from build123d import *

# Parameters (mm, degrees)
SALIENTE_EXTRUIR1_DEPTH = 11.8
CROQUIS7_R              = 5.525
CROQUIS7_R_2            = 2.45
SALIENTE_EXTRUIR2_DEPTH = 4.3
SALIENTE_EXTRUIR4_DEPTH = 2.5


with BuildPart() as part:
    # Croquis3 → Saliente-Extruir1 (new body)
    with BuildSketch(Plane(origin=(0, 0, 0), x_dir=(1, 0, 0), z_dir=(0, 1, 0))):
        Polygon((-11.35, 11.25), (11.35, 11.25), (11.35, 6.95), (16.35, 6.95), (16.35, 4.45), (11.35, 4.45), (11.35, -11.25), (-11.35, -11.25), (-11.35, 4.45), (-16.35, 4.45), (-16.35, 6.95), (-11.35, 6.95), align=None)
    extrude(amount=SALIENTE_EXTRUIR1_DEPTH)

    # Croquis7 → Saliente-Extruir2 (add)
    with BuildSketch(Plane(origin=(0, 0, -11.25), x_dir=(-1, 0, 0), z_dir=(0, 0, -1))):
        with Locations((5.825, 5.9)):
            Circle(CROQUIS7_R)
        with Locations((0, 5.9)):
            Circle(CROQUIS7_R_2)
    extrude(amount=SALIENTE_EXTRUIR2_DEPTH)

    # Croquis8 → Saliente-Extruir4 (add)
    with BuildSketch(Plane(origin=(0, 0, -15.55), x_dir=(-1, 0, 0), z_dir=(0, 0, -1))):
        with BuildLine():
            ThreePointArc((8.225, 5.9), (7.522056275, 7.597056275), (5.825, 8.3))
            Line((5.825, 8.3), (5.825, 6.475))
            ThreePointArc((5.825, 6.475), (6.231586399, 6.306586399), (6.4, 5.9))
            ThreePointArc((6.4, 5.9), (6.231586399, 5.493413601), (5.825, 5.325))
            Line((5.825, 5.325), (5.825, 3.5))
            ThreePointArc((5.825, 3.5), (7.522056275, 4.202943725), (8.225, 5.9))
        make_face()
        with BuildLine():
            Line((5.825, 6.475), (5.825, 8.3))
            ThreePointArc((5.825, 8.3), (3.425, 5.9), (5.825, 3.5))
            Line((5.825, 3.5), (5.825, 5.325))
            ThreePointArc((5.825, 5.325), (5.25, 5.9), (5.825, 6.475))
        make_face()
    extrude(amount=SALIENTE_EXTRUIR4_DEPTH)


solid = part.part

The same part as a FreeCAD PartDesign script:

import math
import FreeCAD as App
import Part
import Sketcher
from FreeCAD import Vector
Q = App.Units.Quantity

doc = App.newDocument("Part")
body = doc.addObject("PartDesign::Body", "Body")

# Sketch on XZ plane
sketch1 = body.newObject("Sketcher::SketchObject", "Sketch")
sketch1.AttachmentSupport = (doc.getObject("XZ_Plane"), [""])
sketch1.MapMode = "FlatFace"
sketch1.addGeometry([
    Part.LineSegment(Vector(11.35, -11.25, 0), Vector(-11.35, -11.25, 0)),  # 0
    Part.LineSegment(Vector(-11.35, -11.25, 0), Vector(-11.35, -6.95, 0)),  # 1
    Part.LineSegment(Vector(-11.35, -6.95, 0), Vector(-16.35, -6.95, 0)),  # 2
    Part.LineSegment(Vector(-16.35, -6.95, 0), Vector(-16.35, -4.45, 0)),  # 3
    Part.LineSegment(Vector(-16.35, -4.45, 0), Vector(-11.35, -4.45, 0)),  # 4
    Part.LineSegment(Vector(-11.35, -4.45, 0), Vector(-11.35, 11.25, 0)),  # 5
    Part.LineSegment(Vector(-11.35, 11.25, 0), Vector(11.35, 11.25, 0)),  # 6
    Part.LineSegment(Vector(11.35, 11.25, 0), Vector(11.35, -4.45, 0)),  # 7
    Part.LineSegment(Vector(11.35, -4.45, 0), Vector(16.35, -4.45, 0)),  # 8
    Part.LineSegment(Vector(16.35, -4.45, 0), Vector(16.35, -6.95, 0)),  # 9
    Part.LineSegment(Vector(16.35, -6.95, 0), Vector(11.35, -6.95, 0)),  # 10
    Part.LineSegment(Vector(11.35, -6.95, 0), Vector(11.35, -11.25, 0)),  # 11
], False)
sketch1.addConstraint([
    Sketcher.Constraint("Coincident", 0, 2, 1, 1),
    Sketcher.Constraint("Coincident", 1, 2, 2, 1),
    Sketcher.Constraint("Coincident", 2, 2, 3, 1),
    Sketcher.Constraint("Coincident", 3, 2, 4, 1),
    Sketcher.Constraint("Coincident", 4, 2, 5, 1),
    Sketcher.Constraint("Coincident", 5, 2, 6, 1),
    Sketcher.Constraint("Coincident", 6, 2, 7, 1),
    Sketcher.Constraint("Coincident", 7, 2, 8, 1),
    Sketcher.Constraint("Coincident", 8, 2, 9, 1),
    Sketcher.Constraint("Coincident", 9, 2, 10, 1),
    Sketcher.Constraint("Coincident", 10, 2, 11, 1),
    Sketcher.Constraint("Coincident", 11, 2, 0, 1),
    Sketcher.Constraint("Horizontal", 0),
    Sketcher.Constraint("Vertical", 1),
    Sketcher.Constraint("Horizontal", 2),
    Sketcher.Constraint("Vertical", 3),
    Sketcher.Constraint("Horizontal", 4),
    Sketcher.Constraint("Vertical", 5),
    Sketcher.Constraint("Horizontal", 6),
    Sketcher.Constraint("Vertical", 7),
    Sketcher.Constraint("Horizontal", 8),
    Sketcher.Constraint("Vertical", 9),
    Sketcher.Constraint("Horizontal", 10),
    Sketcher.Constraint("Vertical", 11),
    Sketcher.Constraint("Symmetric", 0, 2, 6, 2, -1, 1),
    Sketcher.Constraint("Symmetric", 4, 2, 7, 2, -2),
    Sketcher.Constraint("Symmetric", 2, 2, 9, 2, -2),
    Sketcher.Constraint("Vertical", 7, 2, 10, 2),
    Sketcher.Constraint("DistanceX", 2, 2, 2, 1, Q("5 mm")),
    Sketcher.Constraint("DistanceX", 0, 2, 0, 1, Q("22.7 mm")),
    Sketcher.Constraint("DistanceY", 1, 1, 1, 2, Q("4.3 mm")),
    Sketcher.Constraint("DistanceY", 3, 1, 3, 2, Q("2.5 mm")),
    Sketcher.Constraint("DistanceY", 5, 1, 5, 2, Q("15.7 mm")),
])
pad1 = body.newObject("PartDesign::Pad", "Pad")
pad1.Profile = sketch1
pad1.Length = 11.8
pad1.Reversed = True

# Sketch on XY plane
sketch2 = body.newObject("Sketcher::SketchObject", "Sketch001")
sketch2.AttachmentSupport = (doc.getObject("XY_Plane"), [""])
sketch2.MapMode = "FlatFace"
sketch2.AttachmentOffset = App.Placement(Vector(0, 0, -11.25), App.Rotation())
sketch2.addGeometry([
    Part.ArcOfCircle(Part.Circle(Vector(0, 5.9, 0), Vector(0, 0, 1), 2.45), math.radians(-109.244269), math.radians(109.244269)),
    Part.ArcOfCircle(Part.Circle(Vector(-5.825, 5.9, 0), Vector(0, 0, 1), 5.525), math.radians(24.750044), math.radians(335.249956)),
], False)
sketch2.addConstraint([
    Sketcher.Constraint("Coincident", 0, 1, 1, 2),
    Sketcher.Constraint("Coincident", 1, 1, 0, 2),
    Sketcher.Constraint("PointOnObject", 0, 3, -2),
    Sketcher.Constraint("Horizontal", 0, 3, 1, 3),
    Sketcher.Constraint("Radius", 0, Q("2.45 mm")),
    Sketcher.Constraint("Radius", 1, Q("5.525 mm")),
    Sketcher.Constraint("DistanceY", -1, 1, 0, 3, Q("5.9 mm")),
    Sketcher.Constraint("DistanceX", 1, 3, -1, 1, Q("5.825 mm")),
])
pad2 = body.newObject("PartDesign::Pad", "Pad001")
pad2.Profile = sketch2
pad2.Length = 4.3
pad2.Reversed = True

# Sketch on XY plane
sketch3 = body.newObject("Sketcher::SketchObject", "Sketch002")
sketch3.AttachmentSupport = (doc.getObject("XY_Plane"), [""])
sketch3.MapMode = "FlatFace"
sketch3.AttachmentOffset = App.Placement(Vector(0, 0, -15.55), App.Rotation())
sketch3.addGeometry([
    Part.ArcOfCircle(Part.Circle(Vector(-5.825, 5.9, 0), Vector(0, 0, 1), 2.4), math.radians(90), math.radians(180)),  # 0
    Part.ArcOfCircle(Part.Circle(Vector(-5.825, 5.9, 0), Vector(0, 0, 1), 2.4), math.radians(-90), math.radians(90)),  # 1
    Part.ArcOfCircle(Part.Circle(Vector(-5.825, 5.9, 0), Vector(0, 0, 1), 2.4), math.radians(180), math.radians(270)),  # 2
    Part.ArcOfCircle(Part.Circle(Vector(-5.825, 5.9, 0), Vector(0, 0, 1), 0.575), math.radians(-180), math.radians(-90)),  # 3
    Part.ArcOfCircle(Part.Circle(Vector(-5.825, 5.9, 0), Vector(0, 0, 1), 0.575), math.radians(-90), math.radians(90)),  # 4
    Part.ArcOfCircle(Part.Circle(Vector(-5.825, 5.9, 0), Vector(0, 0, 1), 0.575), math.radians(90), math.radians(180)),  # 5
], False)
sketch3.addConstraint([
    Sketcher.Constraint("Tangent", 0, 1, 1, 2),
    Sketcher.Constraint("Tangent", 1, 1, 2, 2),
    Sketcher.Constraint("Tangent", 2, 1, 0, 2),
    Sketcher.Constraint("Tangent", 3, 2, 4, 1),
    Sketcher.Constraint("Tangent", 4, 2, 5, 1),
    Sketcher.Constraint("Tangent", 5, 2, 3, 1),
    Sketcher.Constraint("Coincident", 3, 3, 0, 3),
    Sketcher.Constraint("Horizontal", 5, 3, 2, 1),
    Sketcher.Constraint("Horizontal", 2, 1, 5, 2),
    Sketcher.Constraint("Vertical", 5, 3, 0, 1),
    Sketcher.Constraint("Vertical", 0, 1, 1, 1),
    Sketcher.Constraint("Vertical", 1, 1, 3, 2),
    Sketcher.Constraint("Vertical", 3, 2, 4, 2),
    Sketcher.Constraint("Radius", 0, Q("2.4 mm")),
    Sketcher.Constraint("Radius", 3, Q("0.575 mm")),
    Sketcher.Constraint("DistanceY", -1, 1, 0, 3, Q("5.9 mm")),
    Sketcher.Constraint("DistanceX", 5, 2, -1, 1, Q("6.4 mm")),
])
pad3 = body.newObject("PartDesign::Pad", "Pad002")
pad3.Profile = sketch3
pad3.Length = 2.5
pad3.Reversed = True

doc.recompute()
